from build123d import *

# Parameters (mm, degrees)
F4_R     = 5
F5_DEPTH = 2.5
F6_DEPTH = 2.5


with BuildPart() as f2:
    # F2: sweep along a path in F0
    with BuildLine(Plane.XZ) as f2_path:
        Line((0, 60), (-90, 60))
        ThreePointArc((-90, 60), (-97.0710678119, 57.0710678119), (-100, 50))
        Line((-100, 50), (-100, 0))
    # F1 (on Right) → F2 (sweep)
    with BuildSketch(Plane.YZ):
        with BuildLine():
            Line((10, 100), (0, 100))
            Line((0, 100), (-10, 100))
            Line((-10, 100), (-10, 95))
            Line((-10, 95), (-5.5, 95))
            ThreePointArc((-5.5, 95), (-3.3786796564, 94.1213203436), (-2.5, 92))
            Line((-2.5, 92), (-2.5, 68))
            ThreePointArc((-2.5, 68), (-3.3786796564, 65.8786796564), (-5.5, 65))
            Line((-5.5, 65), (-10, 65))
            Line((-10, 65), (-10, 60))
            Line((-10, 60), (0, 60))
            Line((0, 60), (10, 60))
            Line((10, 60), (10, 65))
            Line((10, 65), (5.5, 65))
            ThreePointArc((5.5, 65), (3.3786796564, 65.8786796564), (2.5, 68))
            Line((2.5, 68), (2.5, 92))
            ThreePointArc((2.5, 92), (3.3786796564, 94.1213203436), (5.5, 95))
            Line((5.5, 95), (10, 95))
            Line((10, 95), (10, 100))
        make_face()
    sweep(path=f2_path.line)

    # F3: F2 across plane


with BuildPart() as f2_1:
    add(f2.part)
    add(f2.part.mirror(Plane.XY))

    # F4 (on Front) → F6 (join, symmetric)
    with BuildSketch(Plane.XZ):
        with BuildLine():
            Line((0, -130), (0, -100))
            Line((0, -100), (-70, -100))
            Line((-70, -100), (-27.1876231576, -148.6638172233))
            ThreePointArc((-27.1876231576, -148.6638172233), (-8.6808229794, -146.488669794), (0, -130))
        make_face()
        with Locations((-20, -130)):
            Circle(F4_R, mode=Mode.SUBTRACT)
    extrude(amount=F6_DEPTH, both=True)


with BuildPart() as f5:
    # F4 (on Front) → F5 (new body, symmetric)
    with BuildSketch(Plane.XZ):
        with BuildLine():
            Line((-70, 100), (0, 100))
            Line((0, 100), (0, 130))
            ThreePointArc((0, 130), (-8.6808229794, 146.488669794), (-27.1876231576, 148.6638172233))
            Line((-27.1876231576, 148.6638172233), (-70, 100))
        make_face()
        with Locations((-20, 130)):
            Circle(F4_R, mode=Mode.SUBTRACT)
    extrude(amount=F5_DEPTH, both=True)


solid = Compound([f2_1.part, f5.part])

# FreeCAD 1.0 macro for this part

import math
import FreeCAD as App
import Part
import Sketcher

V = App.Vector

doc = App.newDocument("Part")
params = doc.addObject("Spreadsheet::Sheet", "Params")
for row, (alias, value) in enumerate([
    ("sketch1_radius", "3 mm"),
    ("sketch1_width", "20 mm"),
    ("sketch1_height", "5 mm"),
    ("sketch1_height2", "24 mm"),
    ("sketch1_width2", "4.5 mm"),
    ("sketch2_radius", "10 mm"),
    ("sketch2_width", "90 mm"),
    ("sketch2_height", "50 mm"),
    ("sketch3_diameter", "10 mm"),
    ("sketch3_radius", "20 mm"),
    ("sketch3_width", "70 mm"),
    ("sketch3_height", "30 mm"),
    ("pad1_length", "5 mm"),
    ("sketch4_diameter", "10 mm"),
    ("sketch4_radius", "20 mm"),
    ("sketch4_width", "70 mm"),
    ("sketch4_height", "30 mm"),
    ("pad2_length", "5 mm"),
], start=1):
    params.set(f"A{row}", alias)
    params.set(f"B{row}", "=" + value)
    params.setAlias(f"B{row}", alias)

body = doc.addObject("PartDesign::Body", "Body")

# Sketch on YZ plane
sketch1 = body.newObject("Sketcher::SketchObject", "Sketch")
sketch1.AttachmentSupport = (doc.getObject("YZ_Plane"), [""])
sketch1.MapMode = "FlatFace"
sketch1.addGeometry([
    Part.LineSegment(V(10, 100, 0), V(-10, 100, 0)),  # 0
    Part.LineSegment(V(-10, 100, 0), V(-10, 95, 0)),  # 1
    Part.LineSegment(V(-10, 95, 0), V(-5.5, 95, 0)),  # 2
    Part.ArcOfCircle(Part.Circle(V(-5.5, 92, 0), V(0, 0, 1), 3), math.radians(0), math.radians(90)),  # 3
    Part.LineSegment(V(-2.5, 92, 0), V(-2.5, 68, 0)),  # 4
    Part.ArcOfCircle(Part.Circle(V(-5.5, 68, 0), V(0, 0, 1), 3), math.radians(-90), math.radians(0)),  # 5
    Part.LineSegment(V(-5.5, 65, 0), V(-10, 65, 0)),  # 6
    Part.LineSegment(V(-10, 65, 0), V(-10, 60, 0)),  # 7
    Part.LineSegment(V(-10, 60, 0), V(10, 60, 0)),  # 8
    Part.LineSegment(V(10, 60, 0), V(10, 65, 0)),  # 9
    Part.LineSegment(V(10, 65, 0), V(5.5, 65, 0)),  # 10
    Part.ArcOfCircle(Part.Circle(V(5.5, 68, 0), V(0, 0, 1), 3), math.radians(180), math.radians(270)),  # 11
    Part.LineSegment(V(2.5, 68, 0), V(2.5, 92, 0)),  # 12
    Part.ArcOfCircle(Part.Circle(V(5.5, 92, 0), V(0, 0, 1), 3), math.radians(90), math.radians(180)),  # 13
    Part.LineSegment(V(5.5, 95, 0), V(10, 95, 0)),  # 14
    Part.LineSegment(V(10, 95, 0), V(10, 100, 0)),  # 15
], False)
sketch1.addConstraint([
    Sketcher.Constraint("Coincident", 0, 2, 1, 1),
    Sketcher.Constraint("Coincident", 1, 2, 2, 1),
    Sketcher.Constraint("Tangent", 2, 2, 3, 2),
    Sketcher.Constraint("Tangent", 3, 1, 4, 1),
    Sketcher.Constraint("Tangent", 4, 2, 5, 2),
    Sketcher.Constraint("Tangent", 5, 1, 6, 1),
    Sketcher.Constraint("Coincident", 6, 2, 7, 1),
    Sketcher.Constraint("Coincident", 7, 2, 8, 1),
    Sketcher.Constraint("Coincident", 8, 2, 9, 1),
    Sketcher.Constraint("Coincident", 9, 2, 10, 1),
    Sketcher.Constraint("Tangent", 10, 2, 11, 2),
    Sketcher.Constraint("Tangent", 11, 1, 12, 1),
    Sketcher.Constraint("Tangent", 12, 2, 13, 2),
    Sketcher.Constraint("Tangent", 13, 1, 14, 1),
    Sketcher.Constraint("Coincident", 14, 2, 15, 1),
    Sketcher.Constraint("Coincident", 15, 2, 0, 1),
    Sketcher.Constraint("Horizontal", 0),
    Sketcher.Constraint("Vertical", 1),
    Sketcher.Constraint("Horizontal", 2),
    Sketcher.Constraint("Vertical", 4),
    Sketcher.Constraint("Horizontal", 6),
    Sketcher.Constraint("Vertical", 7),
    Sketcher.Constraint("Horizontal", 8),
    Sketcher.Constraint("Vertical", 9),
    Sketcher.Constraint("Horizontal", 10),
    Sketcher.Constraint("Vertical", 12),
    Sketcher.Constraint("Horizontal", 14),
    Sketcher.Constraint("Vertical", 15),
    Sketcher.Constraint("Equal", 3, 5),
    Sketcher.Constraint("Equal", 5, 11),
    Sketcher.Constraint("Equal", 11, 13),
    Sketcher.Constraint("Symmetric", 5, 3, 11, 3, -2),
    Sketcher.Constraint("Symmetric", 1, 2, 14, 2, -2),
    Sketcher.Constraint("Vertical", 1, 2, 6, 2),
    Sketcher.Constraint("Vertical", 9, 2, 14, 2),
    Sketcher.Constraint("Equal", 1, 7),
    Sketcher.Constraint("Radius", 3, 3.0),
    Sketcher.Constraint("DistanceX", 0, 2, 0, 1, 20.0),
    Sketcher.Constraint("DistanceY", 1, 2, 1, 1, 5.0),
    Sketcher.Constraint("DistanceY", 4, 2, 4, 1, 24.0),
    Sketcher.Constraint("DistanceX", 2, 1, 2, 2, 4.5),
    Sketcher.Constraint("DistanceY", -1, 1, 3, 3, 92.0),
])
sketch1.setExpression("Constraints[36]", "Params.sketch1_radius")
sketch1.setExpression("Constraints[37]", "Params.sketch1_width")
sketch1.setExpression("Constraints[38]", "Params.sketch1_height")
sketch1.setExpression("Constraints[39]", "Params.sketch1_height2")
sketch1.setExpression("Constraints[40]", "Params.sketch1_width2")

# Sketch on XZ plane
sketch2 = body.newObject("Sketcher::SketchObject", "Sketch001")
sketch2.AttachmentSupport = (doc.getObject("XZ_Plane"), [""])
sketch2.MapMode = "FlatFace"
sketch2.addGeometry([
    Part.LineSegment(V(0, 60, 0), V(-90, 60, 0)),
    Part.ArcOfCircle(Part.Circle(V(-90, 50, 0), V(0, 0, 1), 10), math.radians(90), math.radians(180)),
    Part.LineSegment(V(-100, 50, 0), V(-100, 0, 0)),
], False)
sketch2.addConstraint([
    Sketcher.Constraint("Tangent", 0, 2, 1, 1),
    Sketcher.Constraint("Tangent", 1, 2, 2, 1),
    Sketcher.Constraint("Horizontal", 0),
    Sketcher.Constraint("Vertical", 2),
    Sketcher.Constraint("PointOnObject", 0, 1, -2),
    Sketcher.Constraint("PointOnObject", 2, 2, -1),
    Sketcher.Constraint("Radius", 1, 10.0),
    Sketcher.Constraint("DistanceX", 0, 2, 0, 1, 90.0),
    Sketcher.Constraint("DistanceY", 2, 2, 2, 1, 50.0),
])
sketch2.setExpression("Constraints[6]", "Params.sketch2_radius")
sketch2.setExpression("Constraints[7]", "Params.sketch2_width")
sketch2.setExpression("Constraints[8]", "Params.sketch2_height")
doc.recompute()

additivepipe = body.newObject("PartDesign::AdditivePipe", "AdditivePipe")
additivepipe.Profile = sketch1
additivepipe.Spine = (sketch2, ["Edge1", "Edge2", "Edge3"])
body2 = doc.addObject("PartDesign::Body", "Body001")
doc.recompute()

body2.BaseFeature = body
doc.recompute()

mirroring = doc.addObject("Part::Mirroring", "Mirroring")
mirroring.Source = body
mirroring.Base = V(0, 0, 0)
mirroring.Normal = V(0, 0, 1)
body3 = doc.addObject("PartDesign::Body", "Body002")
body3.BaseFeature = mirroring
boolean = body2.newObject("PartDesign::Boolean", "Boolean")
boolean.Type = "Fuse"
boolean.addObjects([body3])
doc.recompute()

# Sketch on XZ plane
sketch3 = body2.newObject("Sketcher::SketchObject", "Sketch002")
sketch3.AttachmentSupport = (doc.getObject("XZ_Plane001"), [""])
sketch3.MapMode = "FlatFace"
sketch3.addGeometry([
    Part.LineSegment(V(0, -130, 0), V(0, -100, 0)),  # 0
    Part.LineSegment(V(0, -100, 0), V(-70, -100, 0)),  # 1
    Part.LineSegment(V(-70, -100, 0), V(-27.187623, -148.663817, 0)),  # 2
    Part.ArcOfCircle(Part.Circle(V(-20, -130, 0), V(0, 0, 1), 20), math.radians(-111.062196), math.radians(0)),  # 3
    Part.Circle(V(-20, -130, 0), V(0, 0, 1), 5),  # 4
], False)
sketch3.addConstraint([
    Sketcher.Constraint("Coincident", 0, 2, 1, 1),
    Sketcher.Constraint("Coincident", 1, 2, 2, 1),
    Sketcher.Constraint("Coincident", 2, 2, 3, 1),
    Sketcher.Constraint("Tangent", 3, 2, 0, 1),
    Sketcher.Constraint("Vertical", 0),
    Sketcher.Constraint("Horizontal", 1),
    Sketcher.Constraint("Coincident", 4, 3, 3, 3),
    Sketcher.Constraint("PointOnObject", 0, 2, -2),
    Sketcher.Constraint("Diameter", 4, 10.0),
    Sketcher.Constraint("Radius", 3, 20.0),
    Sketcher.Constraint("DistanceX", 1, 2, 1, 1, 70.0),
    Sketcher.Constraint("DistanceY", 0, 1, 0, 2, 30.0),
    Sketcher.Constraint("DistanceY", 3, 3, -1, 1, 130.0),
    Sketcher.Constraint("Distance", 2, 64.815636),
])
sketch3.setExpression("Constraints[8]", "Params.sketch3_diameter")
sketch3.setExpression("Constraints[9]", "Params.sketch3_radius")
sketch3.setExpression("Constraints[10]", "Params.sketch3_width")
sketch3.setExpression("Constraints[11]", "Params.sketch3_height")
pad1 = body2.newObject("PartDesign::Pad", "Pad")
pad1.Profile = sketch3
pad1.setExpression("Length", "Params.pad1_length")
pad1.Midplane = True
body4 = doc.addObject("PartDesign::Body", "Body003")

# Sketch on XZ plane
sketch4 = body4.newObject("Sketcher::SketchObject", "Sketch003")
sketch4.AttachmentSupport = (doc.getObject("XZ_Plane003"), [""])
sketch4.MapMode = "FlatFace"
sketch4.addGeometry([
    Part.LineSegment(V(-70, 100, 0), V(0, 100, 0)),  # 0
    Part.LineSegment(V(0, 100, 0), V(0, 130, 0)),  # 1
    Part.ArcOfCircle(Part.Circle(V(-20, 130, 0), V(0, 0, 1), 20), math.radians(0), math.radians(111.062196)),  # 2
    Part.LineSegment(V(-27.187623, 148.663817, 0), V(-70, 100, 0)),  # 3
    Part.Circle(V(-20, 130, 0), V(0, 0, 1), 5),  # 4
], False)
sketch4.addConstraint([
    Sketcher.Constraint("Coincident", 0, 2, 1, 1),
    Sketcher.Constraint("Tangent", 1, 2, 2, 1),
    Sketcher.Constraint("Coincident", 2, 2, 3, 1),
    Sketcher.Constraint("Coincident", 3, 2, 0, 1),
    Sketcher.Constraint("Horizontal", 0),
    Sketcher.Constraint("Vertical", 1),
    Sketcher.Constraint("Coincident", 4, 3, 2, 3),
    Sketcher.Constraint("PointOnObject", 0, 2, -2),
    Sketcher.Constraint("Diameter", 4, 10.0),
    Sketcher.Constraint("Radius", 2, 20.0),
    Sketcher.Constraint("DistanceX", 0, 1, 0, 2, 70.0),
    Sketcher.Constraint("DistanceY", 1, 1, 1, 2, 30.0),
    Sketcher.Constraint("DistanceY", -1, 1, 2, 3, 130.0),
    Sketcher.Constraint("Distance", 3, 64.815636),
])
sketch4.setExpression("Constraints[8]", "Params.sketch4_diameter")
sketch4.setExpression("Constraints[9]", "Params.sketch4_radius")
sketch4.setExpression("Constraints[10]", "Params.sketch4_width")
sketch4.setExpression("Constraints[11]", "Params.sketch4_height")
pad2 = body4.newObject("PartDesign::Pad", "Pad001")
pad2.Profile = sketch4
pad2.setExpression("Length", "Params.pad2_length")
pad2.Midplane = True
mirroring.Visibility = False

doc.recompute()
